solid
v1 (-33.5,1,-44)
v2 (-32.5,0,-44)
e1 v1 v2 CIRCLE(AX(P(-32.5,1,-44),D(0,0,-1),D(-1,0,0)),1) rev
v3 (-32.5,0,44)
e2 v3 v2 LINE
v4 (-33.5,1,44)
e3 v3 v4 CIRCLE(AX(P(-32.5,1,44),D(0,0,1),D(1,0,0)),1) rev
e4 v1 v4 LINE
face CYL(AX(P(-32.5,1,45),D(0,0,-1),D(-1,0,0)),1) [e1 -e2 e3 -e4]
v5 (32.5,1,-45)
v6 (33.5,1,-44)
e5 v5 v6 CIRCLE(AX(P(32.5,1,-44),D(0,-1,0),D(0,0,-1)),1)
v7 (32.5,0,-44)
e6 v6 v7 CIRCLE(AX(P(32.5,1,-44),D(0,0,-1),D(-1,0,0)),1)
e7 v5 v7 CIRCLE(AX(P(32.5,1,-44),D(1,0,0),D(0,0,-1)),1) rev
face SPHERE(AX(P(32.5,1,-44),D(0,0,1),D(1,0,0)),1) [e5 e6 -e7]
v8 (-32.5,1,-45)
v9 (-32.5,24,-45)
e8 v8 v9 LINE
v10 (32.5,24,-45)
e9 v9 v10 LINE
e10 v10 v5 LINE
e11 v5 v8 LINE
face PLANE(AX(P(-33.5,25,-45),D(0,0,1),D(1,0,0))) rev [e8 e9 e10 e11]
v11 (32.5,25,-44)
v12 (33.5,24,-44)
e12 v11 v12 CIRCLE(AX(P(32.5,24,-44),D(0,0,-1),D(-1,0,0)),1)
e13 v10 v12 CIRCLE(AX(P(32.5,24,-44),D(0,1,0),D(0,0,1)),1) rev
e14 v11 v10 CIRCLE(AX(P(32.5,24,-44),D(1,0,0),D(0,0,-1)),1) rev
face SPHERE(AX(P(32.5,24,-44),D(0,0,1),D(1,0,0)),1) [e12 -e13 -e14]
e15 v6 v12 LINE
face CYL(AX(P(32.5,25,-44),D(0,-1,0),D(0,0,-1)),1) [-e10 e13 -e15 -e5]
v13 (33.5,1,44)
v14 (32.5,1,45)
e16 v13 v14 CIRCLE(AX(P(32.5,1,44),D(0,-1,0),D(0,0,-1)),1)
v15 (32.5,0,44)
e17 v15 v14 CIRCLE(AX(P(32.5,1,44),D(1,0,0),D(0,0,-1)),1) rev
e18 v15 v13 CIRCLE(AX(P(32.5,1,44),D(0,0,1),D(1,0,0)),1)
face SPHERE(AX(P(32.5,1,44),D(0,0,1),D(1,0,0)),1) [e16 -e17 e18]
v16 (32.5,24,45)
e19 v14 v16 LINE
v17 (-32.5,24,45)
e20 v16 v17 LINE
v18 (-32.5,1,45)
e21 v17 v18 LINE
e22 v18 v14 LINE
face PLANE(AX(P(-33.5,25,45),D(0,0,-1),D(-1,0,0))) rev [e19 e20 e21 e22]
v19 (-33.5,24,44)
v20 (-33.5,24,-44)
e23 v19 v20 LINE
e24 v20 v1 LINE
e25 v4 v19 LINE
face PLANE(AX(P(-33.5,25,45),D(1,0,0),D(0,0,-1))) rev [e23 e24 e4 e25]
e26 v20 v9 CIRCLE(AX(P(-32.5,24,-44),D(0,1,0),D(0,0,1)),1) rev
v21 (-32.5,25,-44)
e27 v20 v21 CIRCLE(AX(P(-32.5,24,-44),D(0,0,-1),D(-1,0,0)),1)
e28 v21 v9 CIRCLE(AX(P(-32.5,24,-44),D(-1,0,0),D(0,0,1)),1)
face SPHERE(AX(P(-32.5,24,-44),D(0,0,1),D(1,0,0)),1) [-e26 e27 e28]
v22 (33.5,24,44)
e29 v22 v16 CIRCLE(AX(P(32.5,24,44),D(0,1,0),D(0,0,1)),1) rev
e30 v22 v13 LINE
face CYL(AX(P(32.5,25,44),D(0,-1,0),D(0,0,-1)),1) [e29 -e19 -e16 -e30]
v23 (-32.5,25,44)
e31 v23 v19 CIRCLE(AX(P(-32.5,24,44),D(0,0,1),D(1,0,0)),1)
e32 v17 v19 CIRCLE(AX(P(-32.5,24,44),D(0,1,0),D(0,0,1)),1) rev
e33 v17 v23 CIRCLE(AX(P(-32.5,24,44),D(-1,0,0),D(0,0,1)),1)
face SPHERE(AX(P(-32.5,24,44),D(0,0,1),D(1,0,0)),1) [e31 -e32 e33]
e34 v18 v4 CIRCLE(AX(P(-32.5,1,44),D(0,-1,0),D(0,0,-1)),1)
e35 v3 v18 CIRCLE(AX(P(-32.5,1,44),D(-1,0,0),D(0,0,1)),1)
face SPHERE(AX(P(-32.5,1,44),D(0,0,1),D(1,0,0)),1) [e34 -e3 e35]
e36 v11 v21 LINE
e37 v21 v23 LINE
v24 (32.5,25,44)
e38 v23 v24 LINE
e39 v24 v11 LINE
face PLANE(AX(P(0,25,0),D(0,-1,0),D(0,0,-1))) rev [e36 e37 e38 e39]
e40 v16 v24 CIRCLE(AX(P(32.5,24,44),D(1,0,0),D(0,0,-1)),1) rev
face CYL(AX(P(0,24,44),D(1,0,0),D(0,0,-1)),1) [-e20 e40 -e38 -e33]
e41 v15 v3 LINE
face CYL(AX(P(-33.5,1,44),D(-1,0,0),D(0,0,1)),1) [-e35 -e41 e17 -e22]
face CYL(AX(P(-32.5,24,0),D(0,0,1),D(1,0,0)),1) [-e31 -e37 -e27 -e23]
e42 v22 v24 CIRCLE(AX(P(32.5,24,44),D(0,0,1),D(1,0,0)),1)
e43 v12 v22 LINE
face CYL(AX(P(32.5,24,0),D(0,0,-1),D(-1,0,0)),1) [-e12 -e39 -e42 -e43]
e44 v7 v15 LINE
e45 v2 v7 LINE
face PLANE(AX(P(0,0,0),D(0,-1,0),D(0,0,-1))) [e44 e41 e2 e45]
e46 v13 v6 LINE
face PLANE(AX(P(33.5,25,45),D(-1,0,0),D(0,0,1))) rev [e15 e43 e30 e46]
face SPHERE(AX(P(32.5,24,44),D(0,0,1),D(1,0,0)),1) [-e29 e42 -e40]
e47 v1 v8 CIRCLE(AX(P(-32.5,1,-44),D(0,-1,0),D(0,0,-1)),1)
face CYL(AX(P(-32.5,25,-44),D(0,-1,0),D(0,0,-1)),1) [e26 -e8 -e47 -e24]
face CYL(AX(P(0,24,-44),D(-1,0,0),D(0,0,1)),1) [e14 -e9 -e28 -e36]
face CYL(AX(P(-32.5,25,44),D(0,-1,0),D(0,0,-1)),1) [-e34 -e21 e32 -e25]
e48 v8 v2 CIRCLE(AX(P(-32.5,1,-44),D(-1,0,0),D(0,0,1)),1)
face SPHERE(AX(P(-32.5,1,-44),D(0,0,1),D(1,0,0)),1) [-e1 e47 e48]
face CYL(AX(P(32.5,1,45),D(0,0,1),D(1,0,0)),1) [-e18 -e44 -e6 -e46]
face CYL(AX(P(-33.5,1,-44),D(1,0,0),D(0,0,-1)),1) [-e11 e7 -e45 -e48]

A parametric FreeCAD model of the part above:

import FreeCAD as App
import Part
import Sketcher

V = App.Vector


def add_polygon(sketch, points):
    """Adds a closed chain of lines whose ends are joined by coincident constraints."""
    first, n = sketch.GeometryCount, len(points)
    for a, b in zip(points, points[1:] + points[:1]):
        sketch.addGeometry(Part.LineSegment(App.Vector(*a, 0), App.Vector(*b, 0)), False)
    for i in range(n):
        sketch.addConstraint(Sketcher.Constraint("Coincident", first + i, 2, first + (i + 1) % n, 1))

doc = App.newDocument("Part")
params = doc.addObject("Spreadsheet::Sheet", "Params")
for row, (alias, value) in enumerate([
    ("sketch1_width", "67 mm"),
    ("sketch1_height", "90 mm"),
    ("pad1_length", "25 mm"),
    ("fillet_radius", "1 mm"),
], start=1):
    params.set(f"A{row}", alias)
    params.set(f"B{row}", "=" + value)
    params.setAlias(f"B{row}", alias)

body = doc.addObject("PartDesign::Body", "Body")

# Sketch on XZ plane
sketch1 = body.newObject("Sketcher::SketchObject", "Sketch")
sketch1.AttachmentSupport = (doc.getObject("XZ_Plane"), [""])
sketch1.MapMode = "FlatFace"
add_polygon(sketch1, [(-34, -45), (-34, 45), (34, 45), (34, -45)])  # lines 0-3
sketch1.addConstraint(Sketcher.Constraint("Vertical", 0))
sketch1.addConstraint(Sketcher.Constraint("Horizontal", 1))
sketch1.addConstraint(Sketcher.Constraint("Vertical", 2))
sketch1.addConstraint(Sketcher.Constraint("Horizontal", 3))
sketch1.addConstraint(Sketcher.Constraint("Symmetric", 0, 2, 2, 2, -1, 1))
sketch1.addConstraint(Sketcher.Constraint("DistanceX", 1, 1, 1, 2, 67.0))
sketch1.addConstraint(Sketcher.Constraint("DistanceY", 0, 1, 0, 2, 90.0))
sketch1.setExpression("Constraints[9]", "Params.sketch1_width")
sketch1.setExpression("Constraints[10]", "Params.sketch1_height")
pad1 = body.newObject("PartDesign::Pad", "Pad")
pad1.Profile = sketch1
pad1.setExpression("Length", "Params.pad1_length")
pad1.Reversed = True
doc.recompute()

fillet = body.newObject("PartDesign::Fillet", "Fillet")
fillet.Base = (pad1, ["Edge1"])
fillet.UseAllEdges = True
fillet.setExpression("Radius", "Params.fillet_radius")

doc.recompute()
